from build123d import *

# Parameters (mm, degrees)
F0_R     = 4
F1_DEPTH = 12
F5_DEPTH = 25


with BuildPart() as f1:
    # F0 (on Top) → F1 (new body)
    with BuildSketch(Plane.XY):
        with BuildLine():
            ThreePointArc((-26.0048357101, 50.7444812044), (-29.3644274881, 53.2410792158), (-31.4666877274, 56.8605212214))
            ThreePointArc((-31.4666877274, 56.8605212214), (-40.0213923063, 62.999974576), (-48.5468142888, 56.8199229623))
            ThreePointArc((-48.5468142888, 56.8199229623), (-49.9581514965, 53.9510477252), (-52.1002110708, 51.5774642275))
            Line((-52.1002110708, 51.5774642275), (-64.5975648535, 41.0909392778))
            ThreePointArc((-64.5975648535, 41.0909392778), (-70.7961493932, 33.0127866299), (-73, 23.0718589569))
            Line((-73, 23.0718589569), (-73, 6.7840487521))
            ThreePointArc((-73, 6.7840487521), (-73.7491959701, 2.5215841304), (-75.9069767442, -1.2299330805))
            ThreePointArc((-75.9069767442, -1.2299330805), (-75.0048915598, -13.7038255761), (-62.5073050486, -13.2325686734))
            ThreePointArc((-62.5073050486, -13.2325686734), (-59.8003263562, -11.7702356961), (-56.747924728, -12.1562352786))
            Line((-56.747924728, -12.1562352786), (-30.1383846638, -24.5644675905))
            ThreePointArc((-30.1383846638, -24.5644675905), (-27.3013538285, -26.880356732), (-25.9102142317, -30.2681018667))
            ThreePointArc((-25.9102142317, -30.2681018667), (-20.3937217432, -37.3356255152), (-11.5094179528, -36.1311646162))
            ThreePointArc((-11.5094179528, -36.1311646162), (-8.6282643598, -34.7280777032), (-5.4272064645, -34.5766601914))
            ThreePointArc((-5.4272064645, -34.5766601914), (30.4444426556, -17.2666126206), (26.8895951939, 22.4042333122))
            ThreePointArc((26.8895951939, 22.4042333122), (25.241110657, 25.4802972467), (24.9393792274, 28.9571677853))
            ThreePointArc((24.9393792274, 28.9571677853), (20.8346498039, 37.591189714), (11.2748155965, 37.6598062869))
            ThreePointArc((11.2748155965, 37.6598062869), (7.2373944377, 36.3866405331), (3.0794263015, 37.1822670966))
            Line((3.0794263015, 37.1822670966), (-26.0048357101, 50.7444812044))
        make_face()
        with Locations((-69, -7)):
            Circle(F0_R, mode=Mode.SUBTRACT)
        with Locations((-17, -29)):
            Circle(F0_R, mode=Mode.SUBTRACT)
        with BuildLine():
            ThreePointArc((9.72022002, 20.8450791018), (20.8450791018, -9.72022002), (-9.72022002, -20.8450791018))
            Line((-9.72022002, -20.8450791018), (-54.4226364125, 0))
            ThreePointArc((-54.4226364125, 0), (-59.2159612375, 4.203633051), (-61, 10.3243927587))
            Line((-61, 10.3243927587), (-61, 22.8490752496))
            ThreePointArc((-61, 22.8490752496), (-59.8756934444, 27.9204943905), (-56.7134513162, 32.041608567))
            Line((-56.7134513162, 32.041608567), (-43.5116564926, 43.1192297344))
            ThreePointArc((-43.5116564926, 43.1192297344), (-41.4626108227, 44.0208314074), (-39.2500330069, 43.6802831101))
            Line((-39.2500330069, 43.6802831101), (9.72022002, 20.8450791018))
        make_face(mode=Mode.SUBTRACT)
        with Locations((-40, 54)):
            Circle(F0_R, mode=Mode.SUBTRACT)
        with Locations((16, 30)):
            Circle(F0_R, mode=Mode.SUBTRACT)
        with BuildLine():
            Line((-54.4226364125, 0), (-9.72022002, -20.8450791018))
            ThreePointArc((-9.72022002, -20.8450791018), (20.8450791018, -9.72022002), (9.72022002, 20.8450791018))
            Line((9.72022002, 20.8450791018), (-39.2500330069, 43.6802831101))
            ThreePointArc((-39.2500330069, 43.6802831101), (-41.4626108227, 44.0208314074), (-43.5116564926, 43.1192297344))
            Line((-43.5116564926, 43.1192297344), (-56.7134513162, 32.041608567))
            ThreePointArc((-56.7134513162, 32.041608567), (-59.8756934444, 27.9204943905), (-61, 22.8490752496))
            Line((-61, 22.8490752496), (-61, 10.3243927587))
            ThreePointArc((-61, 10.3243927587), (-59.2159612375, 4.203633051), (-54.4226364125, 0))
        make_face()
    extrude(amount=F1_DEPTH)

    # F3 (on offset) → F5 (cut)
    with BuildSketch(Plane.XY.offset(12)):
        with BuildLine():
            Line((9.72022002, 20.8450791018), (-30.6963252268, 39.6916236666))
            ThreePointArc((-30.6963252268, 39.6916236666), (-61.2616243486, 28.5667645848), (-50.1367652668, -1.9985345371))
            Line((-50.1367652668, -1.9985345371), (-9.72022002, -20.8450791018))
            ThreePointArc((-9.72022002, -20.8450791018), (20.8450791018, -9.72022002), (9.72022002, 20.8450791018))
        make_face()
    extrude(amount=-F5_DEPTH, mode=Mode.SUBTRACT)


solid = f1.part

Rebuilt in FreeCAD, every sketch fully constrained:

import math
import FreeCAD as App
import Part
import Sketcher

V = App.Vector
Q = App.Units.Quantity

doc = App.newDocument("Part")
body = doc.addObject("PartDesign::Body", "Body")

# Sketch on XY plane
sketch1 = body.newObject("Sketcher::SketchObject", "Sketch")
sketch1.AttachmentSupport = (doc.getObject("XY_Plane"), [""])
sketch1.MapMode = "FlatFace"
sketch1.addGeometry(Part.ArcOfCircle(Part.Circle(V(-21.612529, 60.163814, 0), V(0, 0, 1), 10.393084), math.radians(-161.467913), math.radians(-115)), False)
sketch1.addGeometry(Part.ArcOfCircle(Part.Circle(V(-40, 54, 0), V(0, 0, 1), 9), math.radians(18.532087), math.radians(161.740289)), False)
sketch1.addGeometry(Part.ArcOfCircle(Part.Circle(V(-59.543642, 60.4482, 0), V(0, 0, 1), 11.579923), math.radians(-50), math.radians(-18.259711)), False)
sketch1.addGeometry(Part.LineSegment(V(-52.100211, 51.577464, 0), V(-64.597565, 41.090939, 0)), False)
sketch1.addGeometry(Part.ArcOfCircle(Part.Circle(V(-49.477761, 23.071859, 0), V(0, 0, 1), 23.522239), math.radians(130), math.radians(180)), False)
sketch1.addGeometry(Part.LineSegment(V(-73, 23.071859, 0), V(-73, 6.784049, 0)), False)
sketch1.addGeometry(Part.ArcOfCircle(Part.Circle(V(-85.5, 6.784049, 0), V(0, 0, 1), 12.5), math.radians(-39.875277), math.radians(0)), False)
sketch1.addGeometry(Part.ArcOfCircle(Part.Circle(V(-69, -7, 0), V(0, 0, 1), 9), math.radians(140.124723), math.radians(316.171061)), False)
sketch1.addGeometry(Part.ArcOfCircle(Part.Circle(V(-58.87551, -16.718857, 0), V(0, 0, 1), 5.034297), math.radians(65), math.radians(136.171061)), False)
sketch1.addGeometry(Part.LineSegment(V(-56.747925, -12.156235, 0), V(-30.138385, -24.564468, 0)), False)
sketch1.addGeometry(Part.ArcOfCircle(Part.Circle(V(-33.287635, -31.318057, 0), V(0, 0, 1), 7.451761), math.radians(8.099941), math.radians(65)), False)
sketch1.addGeometry(Part.ArcOfCircle(Part.Circle(V(-17, -29, 0), V(0, 0, 1), 9), math.radians(-171.900059), math.radians(-52.405821)), False)
sketch1.addGeometry(Part.ArcOfCircle(Part.Circle(V(-6.659845, -42.429786, 0), V(0, 0, 1), 7.949276), math.radians(81.079548), math.radians(127.594179)), False)
sketch1.addGeometry(Part.ArcOfCircle(Part.Circle(V(0, 0, 0), V(0, 0, 1), 35), math.radians(-98.920452), math.radians(39.800839)), False)
sketch1.addGeometry(Part.ArcOfCircle(Part.Circle(V(33.548998, 27.952804, 0), V(0, 0, 1), 8.668004), math.radians(173.346178), math.radians(219.800839)), False)
sketch1.addGeometry(Part.ArcOfCircle(Part.Circle(V(16, 30, 0), V(0, 0, 1), 9), math.radians(-6.653822), math.radians(121.669623)), False)
sketch1.addGeometry(Part.ArcOfCircle(Part.Circle(V(6.734322, 45.020217, 0), V(0, 0, 1), 8.648221), math.radians(-115), math.radians(-58.330377)), False)
sketch1.addGeometry(Part.LineSegment(V(3.079426, 37.182267, 0), V(-26.004836, 50.744481, 0)), False)
sketch1.addGeometry(Part.Circle(V(-69, -7, 0), V(0, 0, 1), 4), False)
sketch1.addGeometry(Part.Circle(V(-17, -29, 0), V(0, 0, 1), 4), False)
sketch1.addGeometry(Part.Circle(V(-40, 54, 0), V(0, 0, 1), 4), False)
sketch1.addGeometry(Part.Circle(V(16, 30, 0), V(0, 0, 1), 4), False)
sketch1.addConstraint(Sketcher.Constraint("Tangent", 0, 1, 1, 1))
sketch1.addConstraint(Sketcher.Constraint("Tangent", 1, 2, 2, 2))
sketch1.addConstraint(Sketcher.Constraint("Tangent", 2, 1, 3, 1))
sketch1.addConstraint(Sketcher.Constraint("Tangent", 3, 2, 4, 1))
sketch1.addConstraint(Sketcher.Constraint("Tangent", 4, 2, 5, 1))
sketch1.addConstraint(Sketcher.Constraint("Tangent", 5, 2, 6, 2))
sketch1.addConstraint(Sketcher.Constraint("Tangent", 6, 1, 7, 1))
sketch1.addConstraint(Sketcher.Constraint("Tangent", 7, 2, 8, 2))
sketch1.addConstraint(Sketcher.Constraint("Tangent", 8, 1, 9, 1))
sketch1.addConstraint(Sketcher.Constraint("Tangent", 9, 2, 10, 2))
sketch1.addConstraint(Sketcher.Constraint("Tangent", 10, 1, 11, 1))
sketch1.addConstraint(Sketcher.Constraint("Tangent", 11, 2, 12, 2))
sketch1.addConstraint(Sketcher.Constraint("Tangent", 12, 1, 13, 1))
sketch1.addConstraint(Sketcher.Constraint("Tangent", 13, 2, 14, 2))
sketch1.addConstraint(Sketcher.Constraint("Tangent", 14, 1, 15, 1))
sketch1.addConstraint(Sketcher.Constraint("Tangent", 15, 2, 16, 2))
sketch1.addConstraint(Sketcher.Constraint("Tangent", 16, 1, 17, 1))
sketch1.addConstraint(Sketcher.Constraint("Tangent", 17, 2, 0, 2))
sketch1.addConstraint(Sketcher.Constraint("Vertical", 5))
sketch1.addConstraint(Sketcher.Constraint("Coincident", 13, 3, -1, 1))
sketch1.addConstraint(Sketcher.Constraint("Coincident", 18, 3, 7, 3))
sketch1.addConstraint(Sketcher.Constraint("Coincident", 19, 3, 11, 3))
sketch1.addConstraint(Sketcher.Constraint("Coincident", 20, 3, 1, 3))
sketch1.addConstraint(Sketcher.Constraint("Coincident", 21, 3, 15, 3))
sketch1.addConstraint(Sketcher.Constraint("Equal", 1, 7))
sketch1.addConstraint(Sketcher.Constraint("Equal", 7, 11))
sketch1.addConstraint(Sketcher.Constraint("Equal", 11, 15))
sketch1.addConstraint(Sketcher.Constraint("Equal", 18, 19))
sketch1.addConstraint(Sketcher.Constraint("Equal", 19, 20))
sketch1.addConstraint(Sketcher.Constraint("Equal", 20, 21))
sketch1.addConstraint(Sketcher.Constraint("Parallel", 9, 17))
sketch1.addConstraint(Sketcher.Constraint("Diameter", 18, 8.0))
sketch1.addConstraint(Sketcher.Constraint("Radius", 1, 9.0))
sketch1.addConstraint(Sketcher.Constraint("Radius", 13, 35.0))
sketch1.addConstraint(Sketcher.Constraint("Radius", 6, 12.5))
sketch1.addConstraint(Sketcher.Constraint("Angle", 3, Q("-140 deg")))
sketch1.addConstraint(Sketcher.Constraint("Angle", 9, Q("-25 deg")))
sketch1.addConstraint(Sketcher.Constraint("DistanceX", 1, 3, -1, 1, 40.0))
sketch1.addConstraint(Sketcher.Constraint("DistanceY", -1, 1, 1, 3, 54.0))
sketch1.addConstraint(Sketcher.Constraint("DistanceX", 7, 3, -1, 1, 69.0))
sketch1.addConstraint(Sketcher.Constraint("DistanceY", 7, 3, -1, 1, 7.0))
sketch1.addConstraint(Sketcher.Constraint("DistanceX", 11, 3, -1, 1, 17.0))
sketch1.addConstraint(Sketcher.Constraint("DistanceY", 11, 3, -1, 1, 29.0))
sketch1.addConstraint(Sketcher.Constraint("DistanceX", -1, 1, 15, 3, 16.0))
sketch1.addConstraint(Sketcher.Constraint("DistanceY", -1, 1, 15, 3, 30.0))
sketch1.addConstraint(Sketcher.Constraint("DistanceX", 4, 2, -1, 1, 73.0))
sketch1.addConstraint(Sketcher.Constraint("Radius", 4, 23.522239))
sketch1.addConstraint(Sketcher.Constraint("Radius", 10, 7.451761))
sketch1.addConstraint(Sketcher.Constraint("Radius", 16, 8.648221))
sketch1.addConstraint(Sketcher.Constraint("DistanceX", -1, 1, 14, 3, 33.548998))
sketch1.addConstraint(Sketcher.Constraint("Radius", 0, 10.393084))
sketch1.addConstraint(Sketcher.Constraint("Radius", 2, 11.579923))
sketch1.addConstraint(Sketcher.Constraint("Radius", 8, 5.034297))
sketch1.addConstraint(Sketcher.Constraint("Radius", 12, 7.949276))
sketch1.addConstraint(Sketcher.Constraint("DistanceY", 5, 2, 5, 1, 16.28781))
sketch1.addConstraint(Sketcher.Constraint("DistanceY", 10, 1, -1, 1, 30.268102))
sketch1.addConstraint(Sketcher.Constraint("DistanceY", 1, 2, 0, 1, 0.040598))
pad1 = body.newObject("PartDesign::Pad", "Pad")
pad1.Profile = sketch1
pad1.Length = 12

# Sketch on XY plane
sketch2 = body.newObject("Sketcher::SketchObject", "Sketch001")
sketch2.AttachmentSupport = (doc.getObject("XY_Plane"), [""])
sketch2.MapMode = "FlatFace"
sketch2.AttachmentOffset = App.Placement(V(0, 0, 12), App.Rotation())
sketch2.addGeometry(Part.LineSegment(V(9.72022, 20.845079, 0), V(-30.696325, 39.691624, 0)), False)
sketch2.addGeometry(Part.ArcOfCircle(Part.Circle(V(-40.416545, 18.846545, 0), V(0, 0, 1), 23), math.radians(65), math.radians(245)), False)
sketch2.addGeometry(Part.LineSegment(V(-50.136765, -1.998535, 0), V(-9.72022, -20.845079, 0)), False)
sketch2.addGeometry(Part.ArcOfCircle(Part.Circle(V(0, 0, 0), V(0, 0, 1), 23), math.radians(-115), math.radians(65)), False)
sketch2.addConstraint(Sketcher.Constraint("Tangent", 0, 2, 1, 1))
sketch2.addConstraint(Sketcher.Constraint("Tangent", 1, 2, 2, 1))
sketch2.addConstraint(Sketcher.Constraint("Tangent", 2, 2, 3, 1))
sketch2.addConstraint(Sketcher.Constraint("Tangent", 3, 2, 0, 1))
sketch2.addConstraint(Sketcher.Constraint("Coincident", 3, 3, -1, 1))
sketch2.addConstraint(Sketcher.Constraint("Equal", 1, 3))
sketch2.addConstraint(Sketcher.Constraint("Radius", 1, 23.0))
sketch2.addConstraint(Sketcher.Constraint("Angle", 0, Q("155 deg")))
sketch2.addConstraint(Sketcher.Constraint("Distance", 0, 44.594724))
pocket1 = body.newObject("PartDesign::Pocket", "Pocket")
pocket1.Profile = sketch2
pocket1.Length = 25

doc.recompute()
